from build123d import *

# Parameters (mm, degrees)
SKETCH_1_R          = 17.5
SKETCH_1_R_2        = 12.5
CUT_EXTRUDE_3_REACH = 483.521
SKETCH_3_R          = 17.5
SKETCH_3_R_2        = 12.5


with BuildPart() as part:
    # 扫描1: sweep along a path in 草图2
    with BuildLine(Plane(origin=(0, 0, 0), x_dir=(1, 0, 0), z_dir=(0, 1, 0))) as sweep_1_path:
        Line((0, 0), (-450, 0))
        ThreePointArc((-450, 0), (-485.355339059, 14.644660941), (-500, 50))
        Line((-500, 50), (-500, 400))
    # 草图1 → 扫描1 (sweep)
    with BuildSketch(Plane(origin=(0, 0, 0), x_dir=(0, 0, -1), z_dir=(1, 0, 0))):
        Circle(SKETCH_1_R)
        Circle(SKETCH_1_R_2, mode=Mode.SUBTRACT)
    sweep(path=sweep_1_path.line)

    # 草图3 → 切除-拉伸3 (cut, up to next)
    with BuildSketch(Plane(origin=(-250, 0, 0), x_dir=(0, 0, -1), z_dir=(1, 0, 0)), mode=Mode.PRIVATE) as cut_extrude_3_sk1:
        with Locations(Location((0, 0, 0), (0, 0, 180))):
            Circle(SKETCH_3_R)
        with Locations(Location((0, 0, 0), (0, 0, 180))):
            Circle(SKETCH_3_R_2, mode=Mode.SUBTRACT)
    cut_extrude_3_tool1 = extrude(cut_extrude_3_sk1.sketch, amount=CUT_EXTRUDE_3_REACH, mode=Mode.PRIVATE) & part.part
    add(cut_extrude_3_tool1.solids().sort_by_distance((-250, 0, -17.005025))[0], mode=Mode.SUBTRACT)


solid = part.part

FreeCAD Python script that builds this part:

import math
import FreeCAD as App
import Part
import Sketcher
from FreeCAD import Vector

doc = App.newDocument("Part")
params = doc.addObject("Spreadsheet::Sheet", "Params")
for row, (alias, value) in enumerate([
    ("sketch1_diameter", "35 mm"),
    ("sketch1_diameter2", "25 mm"),
    ("sketch2_radius", "50 mm"),
    ("sketch2_width", "450 mm"),
    ("sketch2_height", "350 mm"),
    ("sketch3_diameter", "35 mm"),
    ("sketch3_diameter2", "25 mm"),
    ("pocket1_length", "250 mm"),
], start=1):
    params.set(f"A{row}", alias)
    params.set(f"B{row}", "=" + value)
    params.setAlias(f"B{row}", alias)

body = doc.addObject("PartDesign::Body", "Body")

# Sketch on YZ plane
sketch1 = body.newObject("Sketcher::SketchObject", "Sketch")
sketch1.AttachmentSupport = (doc.getObject("YZ_Plane"), [""])
sketch1.MapMode = "FlatFace"
sketch1.addGeometry([
    Part.Circle(Vector(0, 0, 0), Vector(0, 0, 1), 18),
    Part.Circle(Vector(0, 0, 0), Vector(0, 0, 1), 12),
], False)
sketch1.addConstraint([
    Sketcher.Constraint("Coincident", 0, 3, -1, 1),
    Sketcher.Constraint("Coincident", 1, 3, -1, 1),
    Sketcher.Constraint("Diameter", 0, 35.0),
    Sketcher.Constraint("Diameter", 1, 25.0),
])
sketch1.setExpression("Constraints[2]", "Params.sketch1_diameter")
sketch1.setExpression("Constraints[3]", "Params.sketch1_diameter2")

# Sketch on XZ plane
sketch2 = body.newObject("Sketcher::SketchObject", "Sketch001")
sketch2.AttachmentSupport = (doc.getObject("XZ_Plane"), [""])
sketch2.MapMode = "FlatFace"
sketch2.addGeometry([
    Part.LineSegment(Vector(0, 0, 0), Vector(-450, 0, 0)),
    Part.ArcOfCircle(Part.Circle(Vector(-450, -50, 0), Vector(0, 0, 1), 50), math.radians(90), math.radians(180)),
    Part.LineSegment(Vector(-500, -50, 0), Vector(-500, -400, 0)),
], False)
sketch2.addConstraint([
    Sketcher.Constraint("Tangent", 0, 2, 1, 1),
    Sketcher.Constraint("Tangent", 1, 2, 2, 1),
    Sketcher.Constraint("Horizontal", 0),
    Sketcher.Constraint("Vertical", 2),
    Sketcher.Constraint("Coincident", 0, 1, -1, 1),
    Sketcher.Constraint("Radius", 1, 50.0),
    Sketcher.Constraint("DistanceX", 0, 2, 0, 1, 450.0),
    Sketcher.Constraint("DistanceY", 2, 2, 2, 1, 350.0),
])
sketch2.setExpression("Constraints[5]", "Params.sketch2_radius")
sketch2.setExpression("Constraints[6]", "Params.sketch2_width")
sketch2.setExpression("Constraints[7]", "Params.sketch2_height")
doc.recompute()

additivepipe = body.newObject("PartDesign::AdditivePipe", "AdditivePipe")
additivepipe.Profile = sketch1
additivepipe.Spine = (sketch2, ["Edge1", "Edge2", "Edge3"])

# Sketch on YZ plane
sketch3 = body.newObject("Sketcher::SketchObject", "Sketch002")
sketch3.AttachmentSupport = (doc.getObject("YZ_Plane"), [""])
sketch3.MapMode = "FlatFace"
sketch3.AttachmentOffset = App.Placement(Vector(0, 0, -250), App.Rotation())
sketch3.addGeometry([
    Part.Circle(Vector(0, 0, 0), Vector(0, 0, 1), 18),
    Part.Circle(Vector(0, 0, 0), Vector(0, 0, 1), 12),
], False)
sketch3.addConstraint([
    Sketcher.Constraint("Coincident", 0, 3, -1, 1),
    Sketcher.Constraint("Coincident", 1, 3, -1, 1),
    Sketcher.Constraint("Diameter", 0, 35.0),
    Sketcher.Constraint("Diameter", 1, 25.0),
])
sketch3.setExpression("Constraints[2]", "Params.sketch3_diameter")
sketch3.setExpression("Constraints[3]", "Params.sketch3_diameter2")
pocket1 = body.newObject("PartDesign::Pocket", "Pocket")
pocket1.Profile = sketch3
pocket1.setExpression("Length", "Params.pocket1_length")
pocket1.Reversed = True

doc.recompute()
